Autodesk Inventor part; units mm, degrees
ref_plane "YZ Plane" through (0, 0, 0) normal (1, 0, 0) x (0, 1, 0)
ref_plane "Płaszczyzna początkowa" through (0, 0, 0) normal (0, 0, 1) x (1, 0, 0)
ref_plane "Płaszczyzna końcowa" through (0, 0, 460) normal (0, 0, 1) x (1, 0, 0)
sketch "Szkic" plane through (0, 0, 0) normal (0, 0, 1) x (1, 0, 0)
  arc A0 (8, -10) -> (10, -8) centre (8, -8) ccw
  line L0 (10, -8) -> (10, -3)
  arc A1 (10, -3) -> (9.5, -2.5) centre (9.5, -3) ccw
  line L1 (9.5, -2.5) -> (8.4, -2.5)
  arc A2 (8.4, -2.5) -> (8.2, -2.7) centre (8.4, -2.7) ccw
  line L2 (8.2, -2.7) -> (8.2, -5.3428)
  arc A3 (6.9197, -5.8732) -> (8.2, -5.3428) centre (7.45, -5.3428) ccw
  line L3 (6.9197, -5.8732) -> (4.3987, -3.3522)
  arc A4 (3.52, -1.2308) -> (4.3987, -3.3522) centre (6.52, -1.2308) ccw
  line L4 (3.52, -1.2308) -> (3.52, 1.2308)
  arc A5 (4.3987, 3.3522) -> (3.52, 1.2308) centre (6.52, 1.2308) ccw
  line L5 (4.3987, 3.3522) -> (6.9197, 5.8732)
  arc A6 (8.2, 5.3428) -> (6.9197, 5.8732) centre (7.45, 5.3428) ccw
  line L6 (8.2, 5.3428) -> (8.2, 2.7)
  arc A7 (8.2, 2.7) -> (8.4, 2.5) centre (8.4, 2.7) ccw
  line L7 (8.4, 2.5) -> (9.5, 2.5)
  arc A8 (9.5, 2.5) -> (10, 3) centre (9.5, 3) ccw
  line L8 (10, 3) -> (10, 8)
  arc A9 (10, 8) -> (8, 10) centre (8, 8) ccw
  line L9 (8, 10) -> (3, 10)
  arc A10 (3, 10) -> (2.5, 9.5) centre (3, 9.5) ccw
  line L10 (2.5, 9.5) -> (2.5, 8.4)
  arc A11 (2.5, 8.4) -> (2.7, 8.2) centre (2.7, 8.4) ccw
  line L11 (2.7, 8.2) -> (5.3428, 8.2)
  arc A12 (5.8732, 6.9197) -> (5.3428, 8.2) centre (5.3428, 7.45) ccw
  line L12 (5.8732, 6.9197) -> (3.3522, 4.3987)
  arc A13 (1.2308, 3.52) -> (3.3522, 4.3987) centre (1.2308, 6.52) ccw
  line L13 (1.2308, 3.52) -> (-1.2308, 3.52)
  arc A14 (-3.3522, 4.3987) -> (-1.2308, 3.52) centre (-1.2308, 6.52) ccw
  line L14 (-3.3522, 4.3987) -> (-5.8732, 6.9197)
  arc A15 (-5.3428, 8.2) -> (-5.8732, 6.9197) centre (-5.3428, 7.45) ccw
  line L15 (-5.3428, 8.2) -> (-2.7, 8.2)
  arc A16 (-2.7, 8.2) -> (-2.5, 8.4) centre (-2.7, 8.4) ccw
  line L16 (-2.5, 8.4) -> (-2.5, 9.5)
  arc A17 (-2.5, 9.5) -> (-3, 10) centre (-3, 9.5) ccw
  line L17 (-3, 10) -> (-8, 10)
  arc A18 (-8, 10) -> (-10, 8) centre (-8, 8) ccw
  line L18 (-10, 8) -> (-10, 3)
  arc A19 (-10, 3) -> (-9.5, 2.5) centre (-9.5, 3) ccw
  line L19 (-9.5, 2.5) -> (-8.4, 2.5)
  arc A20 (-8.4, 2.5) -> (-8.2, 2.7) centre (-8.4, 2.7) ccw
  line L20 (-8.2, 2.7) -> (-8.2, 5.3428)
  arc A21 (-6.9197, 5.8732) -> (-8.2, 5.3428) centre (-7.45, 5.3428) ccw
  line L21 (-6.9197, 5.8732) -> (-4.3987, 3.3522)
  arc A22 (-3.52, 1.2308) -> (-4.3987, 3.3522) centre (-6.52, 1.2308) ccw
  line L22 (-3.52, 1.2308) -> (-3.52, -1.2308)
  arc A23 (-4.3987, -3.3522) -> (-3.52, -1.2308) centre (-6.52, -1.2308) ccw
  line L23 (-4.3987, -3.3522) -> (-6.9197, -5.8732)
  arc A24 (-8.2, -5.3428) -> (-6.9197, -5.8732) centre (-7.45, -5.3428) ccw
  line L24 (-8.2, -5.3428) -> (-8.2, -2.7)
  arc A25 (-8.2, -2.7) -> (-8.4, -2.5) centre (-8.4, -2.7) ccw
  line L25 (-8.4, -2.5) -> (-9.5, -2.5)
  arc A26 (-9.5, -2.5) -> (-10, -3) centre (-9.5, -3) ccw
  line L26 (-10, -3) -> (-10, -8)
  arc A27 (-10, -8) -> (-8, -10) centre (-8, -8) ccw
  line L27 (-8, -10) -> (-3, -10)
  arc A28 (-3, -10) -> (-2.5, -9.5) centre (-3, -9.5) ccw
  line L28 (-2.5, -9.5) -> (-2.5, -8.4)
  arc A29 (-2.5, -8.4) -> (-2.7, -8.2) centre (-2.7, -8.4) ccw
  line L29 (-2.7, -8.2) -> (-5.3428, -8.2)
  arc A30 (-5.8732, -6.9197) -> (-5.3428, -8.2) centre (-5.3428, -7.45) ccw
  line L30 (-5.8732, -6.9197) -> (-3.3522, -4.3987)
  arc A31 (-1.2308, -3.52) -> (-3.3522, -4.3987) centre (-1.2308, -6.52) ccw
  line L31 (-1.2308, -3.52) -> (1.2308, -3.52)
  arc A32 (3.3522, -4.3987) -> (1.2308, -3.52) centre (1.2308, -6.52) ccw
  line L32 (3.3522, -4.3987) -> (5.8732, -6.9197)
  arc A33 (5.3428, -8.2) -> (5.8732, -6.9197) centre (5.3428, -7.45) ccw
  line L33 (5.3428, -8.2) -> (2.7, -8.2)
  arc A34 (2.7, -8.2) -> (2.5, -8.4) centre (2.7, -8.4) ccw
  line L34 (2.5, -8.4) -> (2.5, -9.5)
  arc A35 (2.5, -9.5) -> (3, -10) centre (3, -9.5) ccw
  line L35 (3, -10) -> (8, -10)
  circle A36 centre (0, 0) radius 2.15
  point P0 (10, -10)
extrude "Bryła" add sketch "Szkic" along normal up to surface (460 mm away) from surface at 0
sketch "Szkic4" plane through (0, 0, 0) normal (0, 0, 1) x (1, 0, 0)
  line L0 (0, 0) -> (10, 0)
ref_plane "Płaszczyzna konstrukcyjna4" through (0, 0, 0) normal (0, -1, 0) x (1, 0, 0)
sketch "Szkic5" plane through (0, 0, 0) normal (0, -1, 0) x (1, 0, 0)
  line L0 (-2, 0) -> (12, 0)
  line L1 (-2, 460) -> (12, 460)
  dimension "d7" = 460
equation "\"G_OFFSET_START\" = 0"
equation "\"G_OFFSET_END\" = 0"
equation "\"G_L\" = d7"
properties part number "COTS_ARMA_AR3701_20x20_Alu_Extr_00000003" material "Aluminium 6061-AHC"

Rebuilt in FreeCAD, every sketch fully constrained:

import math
import FreeCAD as App
import Part
import Sketcher

doc = App.newDocument("Part")
body = doc.addObject("PartDesign::Body", "Body")

# Sketch on XY plane
sketch1 = doc.addObject("Sketcher::SketchObject", "Sketch")
body.addObject(sketch1)
sketch1.AttachmentSupport = (doc.XY_Plane, [""])
sketch1.MapMode = "FlatFace"
sketch1.addGeometry([
    Part.LineSegment(App.Vector(3, -10, 0), App.Vector(8, -10, 0)),  # 0
    Part.ArcOfCircle(Part.Circle(App.Vector(8, -8, 0), App.Vector(0, 0, 1), 2), math.radians(-90), math.radians(0)),  # 1
    Part.LineSegment(App.Vector(10, -8, 0), App.Vector(10, -3, 0)),  # 2
    Part.ArcOfCircle(Part.Circle(App.Vector(9.5, -3, 0), App.Vector(0, 0, 1), 0.5), math.radians(0), math.radians(90)),  # 3
    Part.LineSegment(App.Vector(9.5, -2.5, 0), App.Vector(8.4, -2.5, 0)),  # 4
    Part.ArcOfCircle(Part.Circle(App.Vector(8.4, -2.7, 0), App.Vector(0, 0, 1), 0.2), math.radians(90), math.radians(180)),  # 5
    Part.LineSegment(App.Vector(8.2, -2.7, 0), App.Vector(8.2, -5.3428, 0)),  # 6
    Part.ArcOfCircle(Part.Circle(App.Vector(7.45, -5.3428, 0), App.Vector(0, 0, 1), 0.750028), math.radians(-134.994598), math.radians(0)),  # 7
    Part.LineSegment(App.Vector(6.9197, -5.8732, 0), App.Vector(4.3987, -3.3522, 0)),  # 8
    Part.ArcOfCircle(Part.Circle(App.Vector(6.52, -1.2308, 0), App.Vector(0, 0, 1), 3), math.radians(180), math.radians(225.00135)),  # 9
    Part.LineSegment(App.Vector(3.52, -1.2308, 0), App.Vector(3.52, 1.2308, 0)),  # 10
    Part.ArcOfCircle(Part.Circle(App.Vector(6.52, 1.2308, 0), App.Vector(0, 0, 1), 3.000042), math.radians(134.99865), math.radians(180)),  # 11
    Part.LineSegment(App.Vector(4.3987, 3.3522, 0), App.Vector(6.9197, 5.8732, 0)),  # 12
    Part.ArcOfCircle(Part.Circle(App.Vector(7.45, 5.3428, 0), App.Vector(0, 0, 1), 0.75), math.radians(0), math.radians(134.994598)),  # 13
    Part.LineSegment(App.Vector(8.2, 5.3428, 0), App.Vector(8.2, 2.7, 0)),  # 14
    Part.ArcOfCircle(Part.Circle(App.Vector(8.4, 2.7, 0), App.Vector(0, 0, 1), 0.2), math.radians(180), math.radians(270)),  # 15
    Part.LineSegment(App.Vector(8.4, 2.5, 0), App.Vector(9.5, 2.5, 0)),  # 16
    Part.ArcOfCircle(Part.Circle(App.Vector(9.5, 3, 0), App.Vector(0, 0, 1), 0.5), math.radians(-90), math.radians(0)),  # 17
    Part.LineSegment(App.Vector(10, 3, 0), App.Vector(10, 8, 0)),  # 18
    Part.ArcOfCircle(Part.Circle(App.Vector(8, 8, 0), App.Vector(0, 0, 1), 2), math.radians(0), math.radians(90)),  # 19
    Part.LineSegment(App.Vector(8, 10, 0), App.Vector(3, 10, 0)),  # 20
    Part.ArcOfCircle(Part.Circle(App.Vector(3, 9.5, 0), App.Vector(0, 0, 1), 0.5), math.radians(90), math.radians(180)),  # 21
    Part.LineSegment(App.Vector(2.5, 9.5, 0), App.Vector(2.5, 8.4, 0)),  # 22
    Part.ArcOfCircle(Part.Circle(App.Vector(2.7, 8.4, 0), App.Vector(0, 0, 1), 0.2), math.radians(180), math.radians(270)),  # 23
    Part.LineSegment(App.Vector(2.7, 8.2, 0), App.Vector(5.3428, 8.2, 0)),  # 24
    Part.ArcOfCircle(Part.Circle(App.Vector(5.3428, 7.45, 0), App.Vector(0, 0, 1), 0.750028), math.radians(-44.994598), math.radians(90)),  # 25
    Part.LineSegment(App.Vector(5.8732, 6.9197, 0), App.Vector(3.3522, 4.3987, 0)),  # 26
    Part.ArcOfCircle(Part.Circle(App.Vector(1.2308, 6.52, 0), App.Vector(0, 0, 1), 3), math.radians(-90), math.radians(-44.99865)),  # 27
    Part.LineSegment(App.Vector(1.2308, 3.52, 0), App.Vector(-1.2308, 3.52, 0)),  # 28
    Part.ArcOfCircle(Part.Circle(App.Vector(-1.2308, 6.52, 0), App.Vector(0, 0, 1), 3.000042), math.radians(-135.00135), math.radians(-90)),  # 29
    Part.LineSegment(App.Vector(-3.3522, 4.3987, 0), App.Vector(-5.8732, 6.9197, 0)),  # 30
    Part.ArcOfCircle(Part.Circle(App.Vector(-5.3428, 7.45, 0), App.Vector(0, 0, 1), 0.75), math.radians(90), math.radians(224.994598)),  # 31
    Part.LineSegment(App.Vector(-5.3428, 8.2, 0), App.Vector(-2.7, 8.2, 0)),  # 32
    Part.ArcOfCircle(Part.Circle(App.Vector(-2.7, 8.4, 0), App.Vector(0, 0, 1), 0.2), math.radians(-90), math.radians(0)),  # 33
    Part.LineSegment(App.Vector(-2.5, 8.4, 0), App.Vector(-2.5, 9.5, 0)),  # 34
    Part.ArcOfCircle(Part.Circle(App.Vector(-3, 9.5, 0), App.Vector(0, 0, 1), 0.5), math.radians(0), math.radians(90)),  # 35
    Part.LineSegment(App.Vector(-3, 10, 0), App.Vector(-8, 10, 0)),  # 36
    Part.ArcOfCircle(Part.Circle(App.Vector(-8, 8, 0), App.Vector(0, 0, 1), 2), math.radians(90), math.radians(180)),  # 37
    Part.LineSegment(App.Vector(-10, 8, 0), App.Vector(-10, 3, 0)),  # 38
    Part.ArcOfCircle(Part.Circle(App.Vector(-9.5, 3, 0), App.Vector(0, 0, 1), 0.5), math.radians(180), math.radians(270)),  # 39
    Part.LineSegment(App.Vector(-9.5, 2.5, 0), App.Vector(-8.4, 2.5, 0)),  # 40
    Part.ArcOfCircle(Part.Circle(App.Vector(-8.4, 2.7, 0), App.Vector(0, 0, 1), 0.2), math.radians(-90), math.radians(0)),  # 41
    Part.LineSegment(App.Vector(-8.2, 2.7, 0), App.Vector(-8.2, 5.3428, 0)),  # 42
    Part.ArcOfCircle(Part.Circle(App.Vector(-7.45, 5.3428, 0), App.Vector(0, 0, 1), 0.750028), math.radians(45.005402), math.radians(180)),  # 43
    Part.LineSegment(App.Vector(-6.9197, 5.8732, 0), App.Vector(-4.3987, 3.3522, 0)),  # 44
    Part.ArcOfCircle(Part.Circle(App.Vector(-6.52, 1.2308, 0), App.Vector(0, 0, 1), 3), math.radians(0), math.radians(45.00135)),  # 45
    Part.LineSegment(App.Vector(-3.52, 1.2308, 0), App.Vector(-3.52, -1.2308, 0)),  # 46
    Part.ArcOfCircle(Part.Circle(App.Vector(-6.52, -1.2308, 0), App.Vector(0, 0, 1), 3.000042), math.radians(-45.00135), math.radians(0)),  # 47
    Part.LineSegment(App.Vector(-4.3987, -3.3522, 0), App.Vector(-6.9197, -5.8732, 0)),  # 48
    Part.ArcOfCircle(Part.Circle(App.Vector(-7.45, -5.3428, 0), App.Vector(0, 0, 1), 0.75), math.radians(180), math.radians(314.994598)),  # 49
    Part.LineSegment(App.Vector(-8.2, -5.3428, 0), App.Vector(-8.2, -2.7, 0)),  # 50
    Part.ArcOfCircle(Part.Circle(App.Vector(-8.4, -2.7, 0), App.Vector(0, 0, 1), 0.2), math.radians(0), math.radians(90)),  # 51
    Part.LineSegment(App.Vector(-8.4, -2.5, 0), App.Vector(-9.5, -2.5, 0)),  # 52
    Part.ArcOfCircle(Part.Circle(App.Vector(-9.5, -3, 0), App.Vector(0, 0, 1), 0.5), math.radians(90), math.radians(180)),  # 53
    Part.LineSegment(App.Vector(-10, -3, 0), App.Vector(-10, -8, 0)),  # 54
    Part.ArcOfCircle(Part.Circle(App.Vector(-8, -8, 0), App.Vector(0, 0, 1), 2), math.radians(180), math.radians(270)),  # 55
    Part.LineSegment(App.Vector(-8, -10, 0), App.Vector(-3, -10, 0)),  # 56
    Part.ArcOfCircle(Part.Circle(App.Vector(-3, -9.5, 0), App.Vector(0, 0, 1), 0.5), math.radians(-90), math.radians(0)),  # 57
    Part.LineSegment(App.Vector(-2.5, -9.5, 0), App.Vector(-2.5, -8.4, 0)),  # 58
    Part.ArcOfCircle(Part.Circle(App.Vector(-2.7, -8.4, 0), App.Vector(0, 0, 1), 0.2), math.radians(0), math.radians(90)),  # 59
    Part.LineSegment(App.Vector(-2.7, -8.2, 0), App.Vector(-5.3428, -8.2, 0)),  # 60
    Part.ArcOfCircle(Part.Circle(App.Vector(-5.3428, -7.45, 0), App.Vector(0, 0, 1), 0.750028), math.radians(135.005402), math.radians(270)),  # 61
    Part.LineSegment(App.Vector(-5.8732, -6.9197, 0), App.Vector(-3.3522, -4.3987, 0)),  # 62
    Part.ArcOfCircle(Part.Circle(App.Vector(-1.2308, -6.52, 0), App.Vector(0, 0, 1), 3), math.radians(90), math.radians(135.00135)),  # 63
    Part.LineSegment(App.Vector(-1.2308, -3.52, 0), App.Vector(1.2308, -3.52, 0)),  # 64
    Part.ArcOfCircle(Part.Circle(App.Vector(1.2308, -6.52, 0), App.Vector(0, 0, 1), 3.000042), math.radians(44.99865), math.radians(90)),  # 65
    Part.LineSegment(App.Vector(3.3522, -4.3987, 0), App.Vector(5.8732, -6.9197, 0)),  # 66
    Part.ArcOfCircle(Part.Circle(App.Vector(5.3428, -7.45, 0), App.Vector(0, 0, 1), 0.75), math.radians(-90), math.radians(44.994598)),  # 67
    Part.LineSegment(App.Vector(5.3428, -8.2, 0), App.Vector(2.7, -8.2, 0)),  # 68
    Part.ArcOfCircle(Part.Circle(App.Vector(2.7, -8.4, 0), App.Vector(0, 0, 1), 0.2), math.radians(90), math.radians(180)),  # 69
    Part.LineSegment(App.Vector(2.5, -8.4, 0), App.Vector(2.5, -9.5, 0)),  # 70
    Part.ArcOfCircle(Part.Circle(App.Vector(3, -9.5, 0), App.Vector(0, 0, 1), 0.5), math.radians(180), math.radians(270)),  # 71
    Part.Circle(App.Vector(0, 0, 0), App.Vector(0, 0, 1), 2.15),  # 72
], False)
sketch1.addConstraint([
    Sketcher.Constraint("Tangent", 0, 2, 1, 1),
    Sketcher.Constraint("Tangent", 1, 2, 2, 1),
    Sketcher.Constraint("Tangent", 2, 2, 3, 1),
    Sketcher.Constraint("Tangent", 3, 2, 4, 1),
    Sketcher.Constraint("Tangent", 4, 2, 5, 1),
    Sketcher.Constraint("Tangent", 5, 2, 6, 1),
    Sketcher.Constraint("Tangent", 6, 2, 7, 2),
    Sketcher.Constraint("Tangent", 7, 1, 8, 1),
    Sketcher.Constraint("Tangent", 8, 2, 9, 2),
    Sketcher.Constraint("Tangent", 9, 1, 10, 1),
    Sketcher.Constraint("Tangent", 10, 2, 11, 2),
    Sketcher.Constraint("Tangent", 11, 1, 12, 1),
    Sketcher.Constraint("Tangent", 12, 2, 13, 2),
    Sketcher.Constraint("Tangent", 13, 1, 14, 1),
    Sketcher.Constraint("Tangent", 14, 2, 15, 1),
    Sketcher.Constraint("Tangent", 15, 2, 16, 1),
    Sketcher.Constraint("Tangent", 16, 2, 17, 1),
    Sketcher.Constraint("Tangent", 17, 2, 18, 1),
    Sketcher.Constraint("Tangent", 18, 2, 19, 1),
    Sketcher.Constraint("Tangent", 19, 2, 20, 1),
    Sketcher.Constraint("Tangent", 20, 2, 21, 1),
    Sketcher.Constraint("Tangent", 21, 2, 22, 1),
    Sketcher.Constraint("Tangent", 22, 2, 23, 1),
    Sketcher.Constraint("Tangent", 23, 2, 24, 1),
    Sketcher.Constraint("Tangent", 24, 2, 25, 2),
    Sketcher.Constraint("Tangent", 25, 1, 26, 1),
    Sketcher.Constraint("Tangent", 26, 2, 27, 2),
    Sketcher.Constraint("Tangent", 27, 1, 28, 1),
    Sketcher.Constraint("Tangent", 28, 2, 29, 2),
    Sketcher.Constraint("Tangent", 29, 1, 30, 1),
    Sketcher.Constraint("Tangent", 30, 2, 31, 2),
    Sketcher.Constraint("Tangent", 31, 1, 32, 1),
    Sketcher.Constraint("Tangent", 32, 2, 33, 1),
    Sketcher.Constraint("Tangent", 33, 2, 34, 1),
    Sketcher.Constraint("Tangent", 34, 2, 35, 1),
    Sketcher.Constraint("Tangent", 35, 2, 36, 1),
    Sketcher.Constraint("Tangent", 36, 2, 37, 1),
    Sketcher.Constraint("Tangent", 37, 2, 38, 1),
    Sketcher.Constraint("Tangent", 38, 2, 39, 1),
    Sketcher.Constraint("Tangent", 39, 2, 40, 1),
    Sketcher.Constraint("Tangent", 40, 2, 41, 1),
    Sketcher.Constraint("Tangent", 41, 2, 42, 1),
    Sketcher.Constraint("Tangent", 42, 2, 43, 2),
    Sketcher.Constraint("Tangent", 43, 1, 44, 1),
    Sketcher.Constraint("Tangent", 44, 2, 45, 2),
    Sketcher.Constraint("Tangent", 45, 1, 46, 1),
    Sketcher.Constraint("Tangent", 46, 2, 47, 2),
    Sketcher.Constraint("Tangent", 47, 1, 48, 1),
    Sketcher.Constraint("Tangent", 48, 2, 49, 2),
    Sketcher.Constraint("Tangent", 49, 1, 50, 1),
    Sketcher.Constraint("Tangent", 50, 2, 51, 1),
    Sketcher.Constraint("Tangent", 51, 2, 52, 1),
    Sketcher.Constraint("Tangent", 52, 2, 53, 1),
    Sketcher.Constraint("Tangent", 53, 2, 54, 1),
    Sketcher.Constraint("Tangent", 54, 2, 55, 1),
    Sketcher.Constraint("Tangent", 55, 2, 56, 1),
    Sketcher.Constraint("Tangent", 56, 2, 57, 1),
    Sketcher.Constraint("Tangent", 57, 2, 58, 1),
    Sketcher.Constraint("Tangent", 58, 2, 59, 1),
    Sketcher.Constraint("Tangent", 59, 2, 60, 1),
    Sketcher.Constraint("Tangent", 60, 2, 61, 2),
    Sketcher.Constraint("Tangent", 61, 1, 62, 1),
    Sketcher.Constraint("Tangent", 62, 2, 63, 2),
    Sketcher.Constraint("Tangent", 63, 1, 64, 1),
    Sketcher.Constraint("Tangent", 64, 2, 65, 2),
    Sketcher.Constraint("Tangent", 65, 1, 66, 1),
    Sketcher.Constraint("Tangent", 66, 2, 67, 2),
    Sketcher.Constraint("Tangent", 67, 1, 68, 1),
    Sketcher.Constraint("Tangent", 68, 2, 69, 1),
    Sketcher.Constraint("Tangent", 69, 2, 70, 1),
    Sketcher.Constraint("Tangent", 70, 2, 71, 1),
    Sketcher.Constraint("Tangent", 71, 2, 0, 1),
    Sketcher.Constraint("Horizontal", 0),
    Sketcher.Constraint("Vertical", 2),
    Sketcher.Constraint("Horizontal", 4),
    Sketcher.Constraint("Vertical", 6),
    Sketcher.Constraint("Vertical", 10),
    Sketcher.Constraint("Vertical", 14),
    Sketcher.Constraint("Horizontal", 16),
    Sketcher.Constraint("Vertical", 18),
    Sketcher.Constraint("Horizontal", 20),
    Sketcher.Constraint("Vertical", 22),
    Sketcher.Constraint("Horizontal", 24),
    Sketcher.Constraint("Horizontal", 28),
    Sketcher.Constraint("Horizontal", 32),
    Sketcher.Constraint("Vertical", 34),
    Sketcher.Constraint("Horizontal", 36),
    Sketcher.Constraint("Vertical", 38),
    Sketcher.Constraint("Horizontal", 40),
    Sketcher.Constraint("Vertical", 42),
    Sketcher.Constraint("Vertical", 46),
    Sketcher.Constraint("Vertical", 50),
    Sketcher.Constraint("Horizontal", 52),
    Sketcher.Constraint("Vertical", 54),
    Sketcher.Constraint("Horizontal", 56),
    Sketcher.Constraint("Vertical", 58),
    Sketcher.Constraint("Horizontal", 60),
    Sketcher.Constraint("Horizontal", 64),
    Sketcher.Constraint("Horizontal", 68),
    Sketcher.Constraint("Vertical", 70),
    Sketcher.Constraint("Coincident", 72, 3, -1, 1),
    Sketcher.Constraint("Equal", 9, 11),
    Sketcher.Constraint("Equal", 7, 13),
    Sketcher.Constraint("Equal", 5, 15),
    Sketcher.Constraint("Equal", 3, 17),
    Sketcher.Constraint("Equal", 1, 19),
    Sketcher.Constraint("Equal", 17, 21),
    Sketcher.Constraint("Equal", 15, 23),
    Sketcher.Constraint("Equal", 13, 25),
    Sketcher.Constraint("Equal", 11, 27),
    Sketcher.Constraint("Equal", 27, 29),
    Sketcher.Constraint("Equal", 25, 31),
    Sketcher.Constraint("Equal", 23, 33),
    Sketcher.Constraint("Equal", 21, 35),
    Sketcher.Constraint("Equal", 19, 37),
    Sketcher.Constraint("Equal", 35, 39),
    Sketcher.Constraint("Equal", 33, 41),
    Sketcher.Constraint("Equal", 31, 43),
    Sketcher.Constraint("Equal", 29, 45),
    Sketcher.Constraint("Equal", 45, 47),
    Sketcher.Constraint("Equal", 43, 49),
    Sketcher.Constraint("Equal", 41, 51),
    Sketcher.Constraint("Equal", 39, 53),
    Sketcher.Constraint("Equal", 37, 55),
    Sketcher.Constraint("Equal", 53, 57),
    Sketcher.Constraint("Equal", 51, 59),
    Sketcher.Constraint("Equal", 49, 61),
    Sketcher.Constraint("Equal", 47, 63),
    Sketcher.Constraint("Equal", 63, 65),
    Sketcher.Constraint("Equal", 61, 67),
    Sketcher.Constraint("Equal", 59, 69),
    Sketcher.Constraint("Equal", 57, 71),
    Sketcher.Constraint("Symmetric", 1, 3, 37, 3, -1, 1),
    Sketcher.Constraint("Symmetric", 5, 3, 41, 3, -1, 1),
    Sketcher.Constraint("Symmetric", 9, 3, 45, 3, -1, 1),
    Sketcher.Constraint("Symmetric", 13, 3, 49, 3, -1, 1),
    Sketcher.Constraint("Symmetric", 17, 3, 53, 3, -1, 1),
    Sketcher.Constraint("Symmetric", 21, 3, 57, 3, -1, 1),
    Sketcher.Constraint("Symmetric", 25, 3, 61, 3, -1, 1),
    Sketcher.Constraint("Symmetric", 27, 3, 63, 3, -1, 1),
    Sketcher.Constraint("Symmetric", 31, 3, 67, 3, -1, 1),
    Sketcher.Constraint("Symmetric", 25, 3, 31, 3, -2),
    Sketcher.Constraint("Symmetric", 21, 3, 35, 3, -2),
    Sketcher.Constraint("Symmetric", 17, 3, 39, 3, -2),
    Sketcher.Constraint("Symmetric", 13, 3, 43, 3, -2),
    Sketcher.Constraint("Symmetric", 8, 2, 47, 1, -2),
    Sketcher.Constraint("Perpendicular", 8, 12),
    Sketcher.Constraint("Parallel", 12, 26),
    Sketcher.Constraint("Perpendicular", 26, 30),
    Sketcher.Constraint("Perpendicular", 44, 48),
    Sketcher.Constraint("Perpendicular", 62, 66),
    Sketcher.Constraint("Vertical", 23, 3, 69, 3),
    Sketcher.Constraint("Equal", 56, 2),
    Sketcher.Constraint("Equal", 68, 6),
    Sketcher.Constraint("Equal", 64, 10),
    Sketcher.Constraint("Equal", 52, 22),
    Sketcher.Constraint("Equal", 12, 26),
    Sketcher.Constraint("Radius", 1, 2.0),
    Sketcher.Constraint("Radius", 9, 3.0),
    Sketcher.Constraint("Diameter", 72, 4.3),
    Sketcher.Constraint("Radius", 3, 0.5),
    Sketcher.Constraint("Radius", 5, 0.2),
    Sketcher.Constraint("DistanceX", 0, 1, 0, 2, 5.0),
    Sketcher.Constraint("Radius", 7, 0.75),
    Sketcher.Constraint("DistanceX", 4, 2, 4, 1, 1.1),
    Sketcher.Constraint("DistanceX", -1, 1, 1, 3, 8.0),
    Sketcher.Constraint("DistanceX", -1, 1, 9, 3, 6.52),
    Sketcher.Constraint("DistanceX", 24, 1, 24, 2, 2.6428),
])
pad1 = doc.addObject("PartDesign::Pad", "Pad")
body.addObject(pad1)
pad1.Profile = sketch1
pad1.Length = 460

doc.recompute()
